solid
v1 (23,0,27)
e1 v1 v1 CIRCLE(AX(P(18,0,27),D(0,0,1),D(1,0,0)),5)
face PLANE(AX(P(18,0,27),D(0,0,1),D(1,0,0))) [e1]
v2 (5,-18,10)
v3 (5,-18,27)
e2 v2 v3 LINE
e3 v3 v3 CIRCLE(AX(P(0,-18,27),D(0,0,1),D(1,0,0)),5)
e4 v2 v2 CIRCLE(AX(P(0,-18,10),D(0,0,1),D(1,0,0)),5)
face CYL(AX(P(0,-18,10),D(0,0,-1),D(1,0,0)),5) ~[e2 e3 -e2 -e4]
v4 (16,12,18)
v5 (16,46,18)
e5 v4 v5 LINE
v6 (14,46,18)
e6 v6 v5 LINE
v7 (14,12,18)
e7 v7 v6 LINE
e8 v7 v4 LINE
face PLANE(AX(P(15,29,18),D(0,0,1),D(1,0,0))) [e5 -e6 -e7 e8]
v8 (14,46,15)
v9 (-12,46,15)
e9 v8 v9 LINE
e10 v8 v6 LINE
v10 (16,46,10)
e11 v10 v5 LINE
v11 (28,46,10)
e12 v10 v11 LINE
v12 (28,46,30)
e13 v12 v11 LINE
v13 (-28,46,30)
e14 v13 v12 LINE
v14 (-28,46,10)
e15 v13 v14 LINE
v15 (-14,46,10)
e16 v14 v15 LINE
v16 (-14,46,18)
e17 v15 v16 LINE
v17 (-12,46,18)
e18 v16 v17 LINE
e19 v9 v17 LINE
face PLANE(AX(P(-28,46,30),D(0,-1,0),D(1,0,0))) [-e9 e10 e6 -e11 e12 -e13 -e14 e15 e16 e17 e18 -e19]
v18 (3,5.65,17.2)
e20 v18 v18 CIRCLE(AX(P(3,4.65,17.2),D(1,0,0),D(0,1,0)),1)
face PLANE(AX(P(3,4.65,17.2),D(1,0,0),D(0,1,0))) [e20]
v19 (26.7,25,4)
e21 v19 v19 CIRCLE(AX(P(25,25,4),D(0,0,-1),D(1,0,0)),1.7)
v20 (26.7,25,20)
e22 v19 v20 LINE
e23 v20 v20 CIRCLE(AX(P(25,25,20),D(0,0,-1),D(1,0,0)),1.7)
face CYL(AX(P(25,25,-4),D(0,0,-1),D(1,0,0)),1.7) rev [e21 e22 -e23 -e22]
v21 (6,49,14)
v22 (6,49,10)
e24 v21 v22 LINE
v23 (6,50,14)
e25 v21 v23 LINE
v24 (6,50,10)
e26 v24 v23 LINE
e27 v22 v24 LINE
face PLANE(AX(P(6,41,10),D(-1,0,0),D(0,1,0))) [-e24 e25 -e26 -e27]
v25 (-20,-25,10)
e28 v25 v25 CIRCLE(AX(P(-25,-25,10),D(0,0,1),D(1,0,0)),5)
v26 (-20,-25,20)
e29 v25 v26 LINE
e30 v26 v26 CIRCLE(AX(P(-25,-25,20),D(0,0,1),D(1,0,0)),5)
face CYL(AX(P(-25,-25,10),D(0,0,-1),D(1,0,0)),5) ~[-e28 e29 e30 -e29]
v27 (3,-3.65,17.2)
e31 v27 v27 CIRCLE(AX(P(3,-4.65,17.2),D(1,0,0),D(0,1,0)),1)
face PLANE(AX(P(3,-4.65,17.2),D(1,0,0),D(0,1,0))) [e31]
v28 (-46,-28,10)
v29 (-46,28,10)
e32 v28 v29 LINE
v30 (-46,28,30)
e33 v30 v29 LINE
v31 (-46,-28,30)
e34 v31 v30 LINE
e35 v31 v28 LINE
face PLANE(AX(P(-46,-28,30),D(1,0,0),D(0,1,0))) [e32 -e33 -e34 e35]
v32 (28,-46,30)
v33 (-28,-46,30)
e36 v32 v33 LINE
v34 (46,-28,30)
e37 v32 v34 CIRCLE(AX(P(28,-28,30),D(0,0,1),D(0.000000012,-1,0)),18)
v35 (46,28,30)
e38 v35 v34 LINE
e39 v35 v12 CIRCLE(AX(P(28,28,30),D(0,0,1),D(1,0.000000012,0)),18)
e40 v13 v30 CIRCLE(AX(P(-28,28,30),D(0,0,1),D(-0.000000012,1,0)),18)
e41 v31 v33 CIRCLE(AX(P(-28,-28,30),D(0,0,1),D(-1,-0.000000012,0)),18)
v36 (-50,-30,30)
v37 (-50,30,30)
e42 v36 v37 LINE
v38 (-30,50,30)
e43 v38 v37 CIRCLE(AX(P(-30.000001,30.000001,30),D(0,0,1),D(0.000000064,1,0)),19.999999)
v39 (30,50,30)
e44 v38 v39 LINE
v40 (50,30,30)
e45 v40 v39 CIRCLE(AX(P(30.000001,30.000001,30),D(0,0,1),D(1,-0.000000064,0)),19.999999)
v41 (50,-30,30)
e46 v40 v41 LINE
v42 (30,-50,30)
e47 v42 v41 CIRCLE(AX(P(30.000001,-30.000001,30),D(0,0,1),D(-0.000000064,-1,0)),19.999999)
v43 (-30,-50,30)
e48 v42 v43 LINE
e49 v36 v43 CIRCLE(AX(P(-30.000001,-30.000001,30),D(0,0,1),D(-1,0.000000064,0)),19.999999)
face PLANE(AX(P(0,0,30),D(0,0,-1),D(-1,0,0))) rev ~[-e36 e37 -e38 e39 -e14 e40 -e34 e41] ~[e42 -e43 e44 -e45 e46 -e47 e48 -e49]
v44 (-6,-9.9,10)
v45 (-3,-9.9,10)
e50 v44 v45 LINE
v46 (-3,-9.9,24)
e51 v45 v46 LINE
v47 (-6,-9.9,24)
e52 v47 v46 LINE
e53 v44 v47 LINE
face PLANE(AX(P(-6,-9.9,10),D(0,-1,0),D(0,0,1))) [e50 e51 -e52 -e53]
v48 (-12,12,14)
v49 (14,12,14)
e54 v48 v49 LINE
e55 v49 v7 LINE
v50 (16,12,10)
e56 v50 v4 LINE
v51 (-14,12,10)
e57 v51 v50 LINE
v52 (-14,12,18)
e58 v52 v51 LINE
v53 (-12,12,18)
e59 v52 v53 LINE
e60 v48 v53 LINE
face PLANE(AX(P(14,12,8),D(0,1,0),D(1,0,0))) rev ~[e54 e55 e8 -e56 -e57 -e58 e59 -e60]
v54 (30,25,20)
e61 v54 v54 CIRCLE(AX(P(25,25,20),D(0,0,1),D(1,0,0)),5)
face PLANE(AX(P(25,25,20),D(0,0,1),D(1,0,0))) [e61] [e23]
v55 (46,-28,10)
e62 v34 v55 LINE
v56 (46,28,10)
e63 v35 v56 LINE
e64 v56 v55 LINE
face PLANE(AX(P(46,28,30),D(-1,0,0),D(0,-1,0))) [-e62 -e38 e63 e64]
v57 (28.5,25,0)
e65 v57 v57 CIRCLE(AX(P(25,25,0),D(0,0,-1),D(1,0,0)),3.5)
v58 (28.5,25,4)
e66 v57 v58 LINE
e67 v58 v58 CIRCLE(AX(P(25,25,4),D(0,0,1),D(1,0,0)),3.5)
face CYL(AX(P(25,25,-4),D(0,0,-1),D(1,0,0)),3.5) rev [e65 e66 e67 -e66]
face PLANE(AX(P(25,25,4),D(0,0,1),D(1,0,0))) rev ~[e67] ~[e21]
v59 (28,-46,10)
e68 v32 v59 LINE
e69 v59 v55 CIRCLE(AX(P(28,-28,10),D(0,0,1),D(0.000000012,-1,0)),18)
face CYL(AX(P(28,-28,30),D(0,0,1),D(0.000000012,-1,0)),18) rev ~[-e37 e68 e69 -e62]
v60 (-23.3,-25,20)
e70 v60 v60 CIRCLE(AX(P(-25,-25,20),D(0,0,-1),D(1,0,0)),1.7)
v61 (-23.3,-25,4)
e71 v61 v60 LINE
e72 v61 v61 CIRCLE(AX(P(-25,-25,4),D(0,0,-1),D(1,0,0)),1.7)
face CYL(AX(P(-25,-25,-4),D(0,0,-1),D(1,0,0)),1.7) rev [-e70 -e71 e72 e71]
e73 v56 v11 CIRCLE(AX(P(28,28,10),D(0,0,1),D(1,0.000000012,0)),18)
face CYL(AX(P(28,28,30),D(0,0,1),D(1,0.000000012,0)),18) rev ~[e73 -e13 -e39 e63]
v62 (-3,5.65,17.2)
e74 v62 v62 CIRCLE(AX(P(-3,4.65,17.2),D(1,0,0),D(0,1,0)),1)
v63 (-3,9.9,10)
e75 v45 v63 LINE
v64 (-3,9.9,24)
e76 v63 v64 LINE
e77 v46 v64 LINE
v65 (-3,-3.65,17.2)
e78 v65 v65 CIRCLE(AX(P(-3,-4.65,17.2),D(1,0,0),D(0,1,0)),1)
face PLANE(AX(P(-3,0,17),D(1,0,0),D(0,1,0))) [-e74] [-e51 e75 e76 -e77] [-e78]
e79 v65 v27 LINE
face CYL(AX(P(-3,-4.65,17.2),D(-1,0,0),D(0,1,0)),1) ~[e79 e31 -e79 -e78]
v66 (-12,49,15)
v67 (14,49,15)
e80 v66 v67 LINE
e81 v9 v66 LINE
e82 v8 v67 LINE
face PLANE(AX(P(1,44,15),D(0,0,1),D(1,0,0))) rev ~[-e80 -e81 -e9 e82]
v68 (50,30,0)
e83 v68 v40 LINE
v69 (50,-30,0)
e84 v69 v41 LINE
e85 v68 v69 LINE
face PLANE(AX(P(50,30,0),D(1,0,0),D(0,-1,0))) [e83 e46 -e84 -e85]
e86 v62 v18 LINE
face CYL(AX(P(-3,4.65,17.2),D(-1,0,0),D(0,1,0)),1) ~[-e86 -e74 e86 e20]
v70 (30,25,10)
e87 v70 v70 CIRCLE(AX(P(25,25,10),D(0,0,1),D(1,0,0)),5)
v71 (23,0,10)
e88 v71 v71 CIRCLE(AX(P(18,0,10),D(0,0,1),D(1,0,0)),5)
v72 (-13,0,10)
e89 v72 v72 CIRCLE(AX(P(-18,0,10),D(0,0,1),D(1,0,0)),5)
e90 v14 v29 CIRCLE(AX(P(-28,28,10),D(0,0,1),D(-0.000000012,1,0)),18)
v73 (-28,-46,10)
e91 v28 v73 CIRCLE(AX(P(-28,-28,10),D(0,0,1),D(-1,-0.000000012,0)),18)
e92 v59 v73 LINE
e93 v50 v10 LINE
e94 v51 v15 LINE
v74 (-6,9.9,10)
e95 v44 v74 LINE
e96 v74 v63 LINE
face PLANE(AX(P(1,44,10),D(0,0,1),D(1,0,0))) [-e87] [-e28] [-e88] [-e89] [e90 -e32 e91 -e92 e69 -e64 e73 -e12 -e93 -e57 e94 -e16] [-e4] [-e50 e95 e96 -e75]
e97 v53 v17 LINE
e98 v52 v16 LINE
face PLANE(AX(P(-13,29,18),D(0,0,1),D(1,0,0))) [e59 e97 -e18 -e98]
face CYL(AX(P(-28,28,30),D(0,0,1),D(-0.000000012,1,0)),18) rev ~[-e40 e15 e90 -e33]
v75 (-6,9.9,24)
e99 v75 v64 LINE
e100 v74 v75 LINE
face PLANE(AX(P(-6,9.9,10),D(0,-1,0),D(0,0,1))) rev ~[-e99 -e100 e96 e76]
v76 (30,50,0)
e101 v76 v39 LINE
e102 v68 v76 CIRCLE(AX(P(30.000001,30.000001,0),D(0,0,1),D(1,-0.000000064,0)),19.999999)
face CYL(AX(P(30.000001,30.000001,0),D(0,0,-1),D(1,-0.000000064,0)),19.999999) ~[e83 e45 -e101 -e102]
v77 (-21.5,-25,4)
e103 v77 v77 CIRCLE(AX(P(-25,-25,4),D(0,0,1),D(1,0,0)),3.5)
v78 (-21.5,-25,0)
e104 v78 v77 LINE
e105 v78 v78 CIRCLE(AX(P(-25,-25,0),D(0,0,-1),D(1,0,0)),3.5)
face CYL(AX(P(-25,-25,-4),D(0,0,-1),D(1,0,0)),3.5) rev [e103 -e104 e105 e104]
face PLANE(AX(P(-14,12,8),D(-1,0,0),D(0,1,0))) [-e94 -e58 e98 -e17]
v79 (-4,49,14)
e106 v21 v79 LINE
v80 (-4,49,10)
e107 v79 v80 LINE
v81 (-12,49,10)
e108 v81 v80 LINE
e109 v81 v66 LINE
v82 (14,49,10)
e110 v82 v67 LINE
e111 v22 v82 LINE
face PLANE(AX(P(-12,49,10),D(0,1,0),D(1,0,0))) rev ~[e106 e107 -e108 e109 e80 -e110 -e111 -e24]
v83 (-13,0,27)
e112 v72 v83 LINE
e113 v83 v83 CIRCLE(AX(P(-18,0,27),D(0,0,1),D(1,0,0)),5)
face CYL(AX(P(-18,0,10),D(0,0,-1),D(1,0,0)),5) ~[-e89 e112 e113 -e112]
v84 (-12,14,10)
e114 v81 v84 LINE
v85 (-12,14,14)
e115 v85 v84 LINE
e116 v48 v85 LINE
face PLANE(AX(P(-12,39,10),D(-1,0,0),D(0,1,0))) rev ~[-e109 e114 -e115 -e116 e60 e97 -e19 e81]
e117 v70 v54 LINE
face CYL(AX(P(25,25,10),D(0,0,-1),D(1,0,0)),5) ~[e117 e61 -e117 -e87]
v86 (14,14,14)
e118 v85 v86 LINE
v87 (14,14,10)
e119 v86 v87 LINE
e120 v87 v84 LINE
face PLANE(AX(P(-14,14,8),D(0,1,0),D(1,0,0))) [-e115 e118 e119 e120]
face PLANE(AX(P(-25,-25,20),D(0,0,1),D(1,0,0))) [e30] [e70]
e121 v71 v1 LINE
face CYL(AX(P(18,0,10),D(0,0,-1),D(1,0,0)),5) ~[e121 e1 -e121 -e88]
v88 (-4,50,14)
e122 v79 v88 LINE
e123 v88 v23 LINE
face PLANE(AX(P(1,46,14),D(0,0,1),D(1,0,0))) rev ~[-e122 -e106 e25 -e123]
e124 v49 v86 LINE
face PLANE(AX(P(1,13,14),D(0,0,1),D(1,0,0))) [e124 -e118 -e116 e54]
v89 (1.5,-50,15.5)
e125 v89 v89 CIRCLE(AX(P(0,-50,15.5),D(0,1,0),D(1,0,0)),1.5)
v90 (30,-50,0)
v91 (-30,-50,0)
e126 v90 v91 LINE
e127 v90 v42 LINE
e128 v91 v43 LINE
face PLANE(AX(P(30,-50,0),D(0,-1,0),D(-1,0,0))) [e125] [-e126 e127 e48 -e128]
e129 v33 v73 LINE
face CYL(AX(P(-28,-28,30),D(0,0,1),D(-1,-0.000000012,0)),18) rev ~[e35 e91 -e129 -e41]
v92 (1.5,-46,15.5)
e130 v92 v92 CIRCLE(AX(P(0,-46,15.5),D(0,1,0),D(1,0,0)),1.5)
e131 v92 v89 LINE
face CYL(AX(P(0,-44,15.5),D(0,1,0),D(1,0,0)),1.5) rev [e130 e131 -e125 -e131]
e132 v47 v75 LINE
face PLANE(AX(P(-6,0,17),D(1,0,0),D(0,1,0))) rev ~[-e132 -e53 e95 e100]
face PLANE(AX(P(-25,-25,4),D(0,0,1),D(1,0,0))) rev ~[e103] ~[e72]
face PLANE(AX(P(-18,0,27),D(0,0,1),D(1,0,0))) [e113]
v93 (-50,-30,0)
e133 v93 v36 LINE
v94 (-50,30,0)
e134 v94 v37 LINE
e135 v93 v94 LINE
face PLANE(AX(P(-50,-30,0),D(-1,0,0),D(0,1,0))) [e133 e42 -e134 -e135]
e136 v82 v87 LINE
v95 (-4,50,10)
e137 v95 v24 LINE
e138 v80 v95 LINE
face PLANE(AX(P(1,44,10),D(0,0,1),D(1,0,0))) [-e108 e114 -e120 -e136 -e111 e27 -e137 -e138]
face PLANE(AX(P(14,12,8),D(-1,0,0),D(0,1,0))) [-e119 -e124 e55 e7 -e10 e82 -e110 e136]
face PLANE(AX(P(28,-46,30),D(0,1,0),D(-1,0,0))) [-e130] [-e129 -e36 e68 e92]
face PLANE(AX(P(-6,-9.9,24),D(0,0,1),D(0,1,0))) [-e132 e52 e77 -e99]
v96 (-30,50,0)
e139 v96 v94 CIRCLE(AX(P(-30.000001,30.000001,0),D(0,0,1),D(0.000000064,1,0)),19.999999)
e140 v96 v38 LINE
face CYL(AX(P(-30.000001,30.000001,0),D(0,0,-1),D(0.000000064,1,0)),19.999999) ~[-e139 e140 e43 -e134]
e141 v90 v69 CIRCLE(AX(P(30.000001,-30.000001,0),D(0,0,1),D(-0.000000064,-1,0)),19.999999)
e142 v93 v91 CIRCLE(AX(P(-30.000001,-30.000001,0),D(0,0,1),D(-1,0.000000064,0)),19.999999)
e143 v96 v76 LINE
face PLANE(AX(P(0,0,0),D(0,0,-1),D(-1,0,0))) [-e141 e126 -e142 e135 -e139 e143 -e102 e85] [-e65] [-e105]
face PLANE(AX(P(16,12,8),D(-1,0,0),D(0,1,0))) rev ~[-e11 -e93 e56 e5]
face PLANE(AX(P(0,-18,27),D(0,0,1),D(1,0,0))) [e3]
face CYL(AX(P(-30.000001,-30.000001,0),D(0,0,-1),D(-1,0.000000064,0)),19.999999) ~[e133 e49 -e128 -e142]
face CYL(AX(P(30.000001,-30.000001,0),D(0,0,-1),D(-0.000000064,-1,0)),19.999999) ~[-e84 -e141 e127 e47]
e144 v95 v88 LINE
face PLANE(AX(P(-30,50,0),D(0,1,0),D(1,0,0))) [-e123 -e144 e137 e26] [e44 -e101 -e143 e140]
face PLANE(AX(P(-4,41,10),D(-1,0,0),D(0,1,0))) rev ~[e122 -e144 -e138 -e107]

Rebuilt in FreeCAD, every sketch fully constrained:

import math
import FreeCAD as App
import Part
import Sketcher

doc = App.newDocument("Part")
body = doc.addObject("PartDesign::Body", "Body")

sketch1 = body.newObject("Sketcher::SketchObject", "Sketch")
sketch1.AttachmentSupport = (doc.getObject("XZ_Plane"), [""])
sketch1.MapMode = "FlatFace"
sketch1.AttachmentOffset = App.Placement(App.Vector(0, 0, 44), App.Rotation())
sketch1.addGeometry(Part.Circle(App.Vector(0, 15.5, 0), App.Vector(0, 0, 1), 1.5), False)
sketch1.addConstraint([
    Sketcher.Constraint("PointOnObject", 0, 3, -2),
    Sketcher.Constraint("Diameter", 0, 3.0),
    Sketcher.Constraint("DistanceY", -1, 1, 0, 3, 15.5),
])
pad1 = body.newObject("PartDesign::Pad", "Pad")
pad1.Profile = sketch1
pad1.Length = 10
body2 = doc.addObject("PartDesign::Body", "Body001")

sketch2 = body2.newObject("Sketcher::SketchObject", "Sketch001")
sketch2.AttachmentSupport = (doc.getObject("XY_Plane001"), [""])
sketch2.MapMode = "FlatFace"
sketch2.AttachmentOffset = App.Placement(App.Vector(0, 0, -4), App.Rotation())
sketch2.addGeometry(Part.Circle(App.Vector(25, 25, 0), App.Vector(0, 0, 1), 3.5), False)
sketch2.addConstraint([
    Sketcher.Constraint("Diameter", 0, 7.0),
    Sketcher.Constraint("DistanceX", -1, 1, 0, 3, 25.0),
    Sketcher.Constraint("DistanceY", -1, 1, 0, 3, 25.0),
])
pad2 = body2.newObject("PartDesign::Pad", "Pad001")
pad2.Profile = sketch2
pad2.Length = 8
body3 = doc.addObject("PartDesign::Body", "Body002")

sketch3 = body3.newObject("Sketcher::SketchObject", "Sketch002")
sketch3.AttachmentSupport = (doc.getObject("XY_Plane002"), [""])
sketch3.MapMode = "FlatFace"
sketch3.AttachmentOffset = App.Placement(App.Vector(0, 0, -4), App.Rotation())
sketch3.addGeometry(Part.Circle(App.Vector(25, 25, 0), App.Vector(0, 0, 1), 1.7), False)
sketch3.addConstraint([
    Sketcher.Constraint("Diameter", 0, 3.4),
    Sketcher.Constraint("DistanceX", -1, 1, 0, 3, 25.0),
    Sketcher.Constraint("DistanceY", -1, 1, 0, 3, 25.0),
])
pad3 = body3.newObject("PartDesign::Pad", "Pad002")
pad3.Profile = sketch3
pad3.Length = 36
doc.recompute()

boolean = body3.newObject("PartDesign::Boolean", "Boolean")
boolean.Type = "Fuse"
boolean.addObjects([body2])
body4 = doc.addObject("PartDesign::Body", "Body003")

sketch4 = body4.newObject("Sketcher::SketchObject", "Sketch003")
sketch4.AttachmentSupport = (doc.getObject("XY_Plane003"), [""])
sketch4.MapMode = "FlatFace"
sketch4.AttachmentOffset = App.Placement(App.Vector(0, 0, -4), App.Rotation())
sketch4.addGeometry(Part.Circle(App.Vector(-25, -25, 0), App.Vector(0, 0, 1), 3.5), False)
sketch4.addConstraint([
    Sketcher.Constraint("Diameter", 0, 7.0),
    Sketcher.Constraint("DistanceX", 0, 3, -1, 1, 25.0),
    Sketcher.Constraint("DistanceY", 0, 3, -1, 1, 25.0),
])
pad4 = body4.newObject("PartDesign::Pad", "Pad003")
pad4.Profile = sketch4
pad4.Length = 8
body5 = doc.addObject("PartDesign::Body", "Body004")

sketch5 = body5.newObject("Sketcher::SketchObject", "Sketch004")
sketch5.AttachmentSupport = (doc.getObject("XY_Plane004"), [""])
sketch5.MapMode = "FlatFace"
sketch5.AttachmentOffset = App.Placement(App.Vector(0, 0, -4), App.Rotation())
sketch5.addGeometry(Part.Circle(App.Vector(-25, -25, 0), App.Vector(0, 0, 1), 1.7), False)
sketch5.addConstraint([
    Sketcher.Constraint("Diameter", 0, 3.4),
    Sketcher.Constraint("DistanceX", 0, 3, -1, 1, 25.0),
    Sketcher.Constraint("DistanceY", 0, 3, -1, 1, 25.0),
])
pad5 = body5.newObject("PartDesign::Pad", "Pad004")
pad5.Profile = sketch5
pad5.Length = 36
doc.recompute()

boolean2 = body5.newObject("PartDesign::Boolean", "Boolean001")
boolean2.Type = "Fuse"
boolean2.addObjects([body4])
body6 = doc.addObject("PartDesign::Body", "Body005")

sketch6 = body6.newObject("Sketcher::SketchObject", "Sketch005")
sketch6.AttachmentSupport = (doc.getObject("XY_Plane005"), [""])
sketch6.MapMode = "FlatFace"
sketch6.AttachmentOffset = App.Placement(App.Vector(0, 0, 10), App.Rotation())
sketch6.addGeometry(Part.Circle(App.Vector(25, 25, 0), App.Vector(0, 0, 1), 5), False)
sketch6.addConstraint([
    Sketcher.Constraint("Diameter", 0, 10.0),
    Sketcher.Constraint("DistanceX", -1, 1, 0, 3, 25.0),
    Sketcher.Constraint("DistanceY", -1, 1, 0, 3, 25.0),
])
pad6 = body6.newObject("PartDesign::Pad", "Pad005")
pad6.Profile = sketch6
pad6.Length = 10
body7 = doc.addObject("PartDesign::Body", "Body006")

sketch7 = body7.newObject("Sketcher::SketchObject", "Sketch006")
sketch7.AttachmentSupport = (doc.getObject("XY_Plane006"), [""])
sketch7.MapMode = "FlatFace"
sketch7.AttachmentOffset = App.Placement(App.Vector(0, 0, 10), App.Rotation())
sketch7.addGeometry(Part.Circle(App.Vector(-25, -25, 0), App.Vector(0, 0, 1), 5), False)
sketch7.addConstraint([
    Sketcher.Constraint("Diameter", 0, 10.0),
    Sketcher.Constraint("DistanceX", 0, 3, -1, 1, 25.0),
    Sketcher.Constraint("DistanceY", 0, 3, -1, 1, 25.0),
])
pad7 = body7.newObject("PartDesign::Pad", "Pad006")
pad7.Profile = sketch7
pad7.Length = 10
body8 = doc.addObject("PartDesign::Body", "Body007")

sketch8 = body8.newObject("Sketcher::SketchObject", "Sketch007")
sketch8.AttachmentSupport = (doc.getObject("YZ_Plane007"), [""])
sketch8.MapMode = "FlatFace"
sketch8.addGeometry([
    Part.LineSegment(App.Vector(-10, 14, 0), App.Vector(-10, 0, 0)),
    Part.LineSegment(App.Vector(-10, 0, 0), App.Vector(10, 0, 0)),
    Part.LineSegment(App.Vector(10, 0, 0), App.Vector(10, 14, 0)),
    Part.LineSegment(App.Vector(10, 14, 0), App.Vector(-10, 14, 0)),
], False)
sketch8.addConstraint([
    Sketcher.Constraint("Coincident", 0, 2, 1, 1),
    Sketcher.Constraint("Coincident", 1, 2, 2, 1),
    Sketcher.Constraint("Coincident", 2, 2, 3, 1),
    Sketcher.Constraint("Coincident", 3, 2, 0, 1),
    Sketcher.Constraint("Vertical", 0),
    Sketcher.Constraint("Horizontal", 1),
    Sketcher.Constraint("Vertical", 2),
    Sketcher.Constraint("Horizontal", 3),
    Sketcher.Constraint("Symmetric", 0, 2, 1, 2, -1, 1),
    Sketcher.Constraint("DistanceY", 0, 2, 0, 1, 14.0),
    Sketcher.Constraint("DistanceX", 1, 1, 1, 2, 19.8),
])
pad8 = body8.newObject("PartDesign::Pad", "Pad007")
pad8.Profile = sketch8
pad8.Length = 3

sketch9 = body8.newObject("Sketcher::SketchObject", "Sketch008")
sketch9.AttachmentSupport = (doc.getObject("YZ_Plane007"), [""])
sketch9.MapMode = "FlatFace"
sketch9.AttachmentOffset = App.Placement(App.Vector(0, 0, 3), App.Rotation())
sketch9.addGeometry([
    Part.Circle(App.Vector(-4.7, 7.2, 0), App.Vector(0, 0, 1), 1),
    Part.Circle(App.Vector(4.7, 7.2, 0), App.Vector(0, 0, 1), 1),
], False)
sketch9.addConstraint([
    Sketcher.Constraint("Equal", 0, 1),
    Sketcher.Constraint("Symmetric", 0, 3, 1, 3, -2),
    Sketcher.Constraint("Diameter", 0, 2.0),
    Sketcher.Constraint("DistanceY", -1, 1, 0, 3, 7.2),
    Sketcher.Constraint("DistanceX", 0, 3, 1, 3, 9.3),
])
pad9 = body8.newObject("PartDesign::Pad", "Pad008")
pad9.Profile = sketch9
pad9.Length = 6
body9 = doc.addObject("PartDesign::Body", "Body008")
doc.recompute()

body8.Placement = App.Placement(App.Vector(-6, 0, 10), App.Rotation(App.Vector(0, 0, 1), 0))
boolean3 = body9.newObject("PartDesign::Boolean", "Boolean002")
boolean3.Type = "Fuse"
boolean3.addObjects([body8])
body10 = doc.addObject("PartDesign::Body", "Body009")

sketch10 = body10.newObject("Sketcher::SketchObject", "Sketch009")
sketch10.AttachmentSupport = (doc.getObject("XY_Plane009"), [""])
sketch10.MapMode = "FlatFace"
sketch10.AttachmentOffset = App.Placement(App.Vector(0, 0, 10), App.Rotation())
sketch10.addGeometry(Part.Circle(App.Vector(-18, 0, 0), App.Vector(0, 0, 1), 5), False)
sketch10.addConstraint([
    Sketcher.Constraint("PointOnObject", 0, 3, -1),
    Sketcher.Constraint("Diameter", 0, 10.0),
    Sketcher.Constraint("DistanceX", 0, 3, -1, 1, 18.0),
])
pad10 = body10.newObject("PartDesign::Pad", "Pad009")
pad10.Profile = sketch10
pad10.Length = 17
body11 = doc.addObject("PartDesign::Body", "Body010")

sketch11 = body11.newObject("Sketcher::SketchObject", "Sketch010")
sketch11.AttachmentSupport = (doc.getObject("XY_Plane010"), [""])
sketch11.MapMode = "FlatFace"
sketch11.AttachmentOffset = App.Placement(App.Vector(0, 0, 10), App.Rotation())
sketch11.addGeometry(Part.Circle(App.Vector(18, 0, 0), App.Vector(0, 0, 1), 5), False)
sketch11.addConstraint([
    Sketcher.Constraint("PointOnObject", 0, 3, -1),
    Sketcher.Constraint("Diameter", 0, 10.0),
    Sketcher.Constraint("DistanceX", -1, 1, 0, 3, 18.0),
])
pad11 = body11.newObject("PartDesign::Pad", "Pad010")
pad11.Profile = sketch11
pad11.Length = 17
body12 = doc.addObject("PartDesign::Body", "Body011")

sketch12 = body12.newObject("Sketcher::SketchObject", "Sketch011")
sketch12.AttachmentSupport = (doc.getObject("XY_Plane011"), [""])
sketch12.MapMode = "FlatFace"
sketch12.AttachmentOffset = App.Placement(App.Vector(0, 0, 10), App.Rotation())
sketch12.addGeometry(Part.Circle(App.Vector(0, -18, 0), App.Vector(0, 0, 1), 5), False)
sketch12.addConstraint([
    Sketcher.Constraint("PointOnObject", 0, 3, -2),
    Sketcher.Constraint("Diameter", 0, 10.0),
    Sketcher.Constraint("DistanceY", 0, 3, -1, 1, 18.0),
])
pad12 = body12.newObject("PartDesign::Pad", "Pad011")
pad12.Profile = sketch12
pad12.Length = 17
body13 = doc.addObject("PartDesign::Body", "Body012")

sketch13 = body13.newObject("Sketcher::SketchObject", "Sketch012")
sketch13.AttachmentSupport = (doc.getObject("XY_Plane012"), [""])
sketch13.MapMode = "FlatFace"
sketch13.AttachmentOffset = App.Placement(App.Vector(0, 0, 8), App.Rotation())
sketch13.addGeometry([
    Part.LineSegment(App.Vector(-14, 46, 0), App.Vector(-14, 12, 0)),
    Part.LineSegment(App.Vector(-14, 12, 0), App.Vector(-12, 12, 0)),
    Part.LineSegment(App.Vector(-12, 12, 0), App.Vector(-12, 46, 0)),
    Part.LineSegment(App.Vector(-12, 46, 0), App.Vector(-14, 46, 0)),
], False)
sketch13.addConstraint([
    Sketcher.Constraint("Coincident", 0, 2, 1, 1),
    Sketcher.Constraint("Coincident", 1, 2, 2, 1),
    Sketcher.Constraint("Coincident", 2, 2, 3, 1),
    Sketcher.Constraint("Coincident", 3, 2, 0, 1),
    Sketcher.Constraint("Vertical", 0),
    Sketcher.Constraint("Horizontal", 1),
    Sketcher.Constraint("Vertical", 2),
    Sketcher.Constraint("Horizontal", 3),
    Sketcher.Constraint("DistanceX", 1, 1, 1, 2, 2.0),
    Sketcher.Constraint("DistanceY", 0, 2, 0, 1, 34.0),
    Sketcher.Constraint("DistanceX", 0, 2, -1, 1, 14.0),
    Sketcher.Constraint("DistanceY", -1, 1, 0, 2, 12.0),
])
pad13 = body13.newObject("PartDesign::Pad", "Pad012")
pad13.Profile = sketch13
pad13.Length = 10
body14 = doc.addObject("PartDesign::Body", "Body013")

sketch14 = body14.newObject("Sketcher::SketchObject", "Sketch013")
sketch14.AttachmentSupport = (doc.getObject("XY_Plane013"), [""])
sketch14.MapMode = "FlatFace"
sketch14.AttachmentOffset = App.Placement(App.Vector(0, 0, 8), App.Rotation())
sketch14.addGeometry([
    Part.LineSegment(App.Vector(14, 46, 0), App.Vector(14, 12, 0)),
    Part.LineSegment(App.Vector(14, 12, 0), App.Vector(16, 12, 0)),
    Part.LineSegment(App.Vector(16, 12, 0), App.Vector(16, 46, 0)),
    Part.LineSegment(App.Vector(16, 46, 0), App.Vector(14, 46, 0)),
], False)
sketch14.addConstraint([
    Sketcher.Constraint("Coincident", 0, 2, 1, 1),
    Sketcher.Constraint("Coincident", 1, 2, 2, 1),
    Sketcher.Constraint("Coincident", 2, 2, 3, 1),
    Sketcher.Constraint("Coincident", 3, 2, 0, 1),
    Sketcher.Constraint("Vertical", 0),
    Sketcher.Constraint("Horizontal", 1),
    Sketcher.Constraint("Vertical", 2),
    Sketcher.Constraint("Horizontal", 3),
    Sketcher.Constraint("DistanceX", 1, 1, 1, 2, 2.0),
    Sketcher.Constraint("DistanceY", 0, 2, 0, 1, 34.0),
    Sketcher.Constraint("DistanceX", -1, 1, 0, 2, 14.0),
    Sketcher.Constraint("DistanceY", -1, 1, 0, 2, 12.0),
])
pad14 = body14.newObject("PartDesign::Pad", "Pad013")
pad14.Profile = sketch14
pad14.Length = 10
body15 = doc.addObject("PartDesign::Body", "Body014")

sketch15 = body15.newObject("Sketcher::SketchObject", "Sketch014")
sketch15.AttachmentSupport = (doc.getObject("XY_Plane014"), [""])
sketch15.MapMode = "FlatFace"
sketch15.AttachmentOffset = App.Placement(App.Vector(0, 0, 8), App.Rotation())
sketch15.addGeometry([
    Part.LineSegment(App.Vector(-14, 14, 0), App.Vector(-14, 12, 0)),
    Part.LineSegment(App.Vector(-14, 12, 0), App.Vector(16, 12, 0)),
    Part.LineSegment(App.Vector(16, 12, 0), App.Vector(16, 14, 0)),
    Part.LineSegment(App.Vector(16, 14, 0), App.Vector(-14, 14, 0)),
], False)
sketch15.addConstraint([
    Sketcher.Constraint("Coincident", 0, 2, 1, 1),
    Sketcher.Constraint("Coincident", 1, 2, 2, 1),
    Sketcher.Constraint("Coincident", 2, 2, 3, 1),
    Sketcher.Constraint("Coincident", 3, 2, 0, 1),
    Sketcher.Constraint("Vertical", 0),
    Sketcher.Constraint("Horizontal", 1),
    Sketcher.Constraint("Vertical", 2),
    Sketcher.Constraint("Horizontal", 3),
    Sketcher.Constraint("DistanceX", 1, 1, 1, 2, 30.0),
    Sketcher.Constraint("DistanceY", 0, 2, 0, 1, 2.0),
    Sketcher.Constraint("DistanceX", 0, 2, -1, 1, 14.0),
    Sketcher.Constraint("DistanceY", -1, 1, 0, 2, 12.0),
])
pad15 = body15.newObject("PartDesign::Pad", "Pad014")
pad15.Profile = sketch15
pad15.Length = 6
body16 = doc.addObject("PartDesign::Body", "Body015")

sketch16 = body16.newObject("Sketcher::SketchObject", "Sketch015")
sketch16.AttachmentSupport = (doc.getObject("XY_Plane015"), [""])
sketch16.MapMode = "FlatFace"
sketch16.AttachmentOffset = App.Placement(App.Vector(0, 0, 10), App.Rotation())
sketch16.addGeometry([
    Part.LineSegment(App.Vector(-12, 49, 0), App.Vector(-12, 39, 0)),
    Part.LineSegment(App.Vector(-12, 39, 0), App.Vector(14, 39, 0)),
    Part.LineSegment(App.Vector(14, 39, 0), App.Vector(14, 49, 0)),
    Part.LineSegment(App.Vector(14, 49, 0), App.Vector(-12, 49, 0)),
], False)
sketch16.addConstraint([
    Sketcher.Constraint("Coincident", 0, 2, 1, 1),
    Sketcher.Constraint("Coincident", 1, 2, 2, 1),
    Sketcher.Constraint("Coincident", 2, 2, 3, 1),
    Sketcher.Constraint("Coincident", 3, 2, 0, 1),
    Sketcher.Constraint("Vertical", 0),
    Sketcher.Constraint("Horizontal", 1),
    Sketcher.Constraint("Vertical", 2),
    Sketcher.Constraint("Horizontal", 3),
    Sketcher.Constraint("DistanceX", 1, 1, 1, 2, 26.0),
    Sketcher.Constraint("DistanceY", 0, 2, 0, 1, 10.0),
    Sketcher.Constraint("DistanceX", 0, 2, -1, 1, 12.0),
    Sketcher.Constraint("DistanceY", -1, 1, 0, 2, 39.0),
])
pad16 = body16.newObject("PartDesign::Pad", "Pad015")
pad16.Profile = sketch16
pad16.Length = 5
body17 = doc.addObject("PartDesign::Body", "Body016")

sketch17 = body17.newObject("Sketcher::SketchObject", "Sketch016")
sketch17.AttachmentSupport = (doc.getObject("XY_Plane016"), [""])
sketch17.MapMode = "FlatFace"
sketch17.AttachmentOffset = App.Placement(App.Vector(0, 0, 10), App.Rotation())
sketch17.addGeometry([
    Part.LineSegment(App.Vector(-4, 51, 0), App.Vector(-4, 41, 0)),
    Part.LineSegment(App.Vector(-4, 41, 0), App.Vector(6, 41, 0)),
    Part.LineSegment(App.Vector(6, 41, 0), App.Vector(6, 51, 0)),
    Part.LineSegment(App.Vector(6, 51, 0), App.Vector(-4, 51, 0)),
], False)
sketch17.addConstraint([
    Sketcher.Constraint("Coincident", 0, 2, 1, 1),
    Sketcher.Constraint("Coincident", 1, 2, 2, 1),
    Sketcher.Constraint("Coincident", 2, 2, 3, 1),
    Sketcher.Constraint("Coincident", 3, 2, 0, 1),
    Sketcher.Constraint("Vertical", 0),
    Sketcher.Constraint("Horizontal", 1),
    Sketcher.Constraint("Vertical", 2),
    Sketcher.Constraint("Horizontal", 3),
    Sketcher.Constraint("Equal", 3, 0),
    Sketcher.Constraint("DistanceX", 1, 1, 1, 2, 10.0),
    Sketcher.Constraint("DistanceX", 0, 2, -1, 1, 4.0),
    Sketcher.Constraint("DistanceY", -1, 1, 0, 2, 41.0),
])
pad17 = body17.newObject("PartDesign::Pad", "Pad016")
pad17.Profile = sketch17
pad17.Length = 4
doc.recompute()

boolean4 = body17.newObject("PartDesign::Boolean", "Boolean003")
boolean4.Type = "Fuse"
boolean4.addObjects([body16])
body18 = doc.addObject("PartDesign::Body", "Body017")

sketch18 = body18.newObject("Sketcher::SketchObject", "Sketch017")
sketch18.AttachmentSupport = (doc.getObject("XY_Plane017"), [""])
sketch18.MapMode = "FlatFace"
sketch18.addGeometry([
    Part.LineSegment(App.Vector(30, 50, 0), App.Vector(-30, 50, 0)),
    Part.ArcOfCircle(Part.Circle(App.Vector(-30, 30, 0), App.Vector(0, 0, 1), 20), math.radians(90), math.radians(180)),
    Part.LineSegment(App.Vector(-50, 30, 0), App.Vector(-50, -30, 0)),
    Part.ArcOfCircle(Part.Circle(App.Vector(-30, -30, 0), App.Vector(0, 0, 1), 20), math.radians(180), math.radians(270)),
    Part.LineSegment(App.Vector(-30, -50, 0), App.Vector(30, -50, 0)),
    Part.ArcOfCircle(Part.Circle(App.Vector(30, -30, 0), App.Vector(0, 0, 1), 20), math.radians(-90), math.radians(0)),
    Part.LineSegment(App.Vector(50, -30, 0), App.Vector(50, 30, 0)),
    Part.ArcOfCircle(Part.Circle(App.Vector(30, 30, 0), App.Vector(0, 0, 1), 20), math.radians(0), math.radians(90)),
], False)
sketch18.addConstraint([
    Sketcher.Constraint("Tangent", 0, 2, 1, 1),
    Sketcher.Constraint("Tangent", 1, 2, 2, 1),
    Sketcher.Constraint("Tangent", 2, 2, 3, 1),
    Sketcher.Constraint("Tangent", 3, 2, 4, 1),
    Sketcher.Constraint("Tangent", 4, 2, 5, 1),
    Sketcher.Constraint("Tangent", 5, 2, 6, 1),
    Sketcher.Constraint("Tangent", 6, 2, 7, 1),
    Sketcher.Constraint("Tangent", 7, 2, 0, 1),
    Sketcher.Constraint("Horizontal", 0),
    Sketcher.Constraint("Vertical", 2),
    Sketcher.Constraint("Horizontal", 4),
    Sketcher.Constraint("Vertical", 6),
    Sketcher.Constraint("Equal", 1, 3),
    Sketcher.Constraint("Equal", 3, 5),
    Sketcher.Constraint("Equal", 5, 7),
    Sketcher.Constraint("Symmetric", 1, 3, 5, 3, -1, 1),
    Sketcher.Constraint("Equal", 4, 2),
    Sketcher.Constraint("Radius", 1, 19.999999),
    Sketcher.Constraint("DistanceX", 0, 2, 0, 1, 60.0),
])
pad18 = body18.newObject("PartDesign::Pad", "Pad017")
pad18.Profile = sketch18
pad18.Length = 30

sketch19 = body18.newObject("Sketcher::SketchObject", "Sketch018")
sketch19.AttachmentSupport = (doc.getObject("XY_Plane017"), [""])
sketch19.MapMode = "FlatFace"
sketch19.AttachmentOffset = App.Placement(App.Vector(0, 0, 30), App.Rotation())
sketch19.addGeometry([
    Part.LineSegment(App.Vector(28, 46, 0), App.Vector(-28, 46, 0)),
    Part.ArcOfCircle(Part.Circle(App.Vector(-28, 28, 0), App.Vector(0, 0, 1), 18), math.radians(90), math.radians(180)),
    Part.LineSegment(App.Vector(-46, 28, 0), App.Vector(-46, -28, 0)),
    Part.ArcOfCircle(Part.Circle(App.Vector(-28, -28, 0), App.Vector(0, 0, 1), 18), math.radians(-180), math.radians(-90)),
    Part.LineSegment(App.Vector(-28, -46, 0), App.Vector(28, -46, 0)),
    Part.ArcOfCircle(Part.Circle(App.Vector(28, -28, 0), App.Vector(0, 0, 1), 18), math.radians(-90), math.radians(0)),
    Part.LineSegment(App.Vector(46, -28, 0), App.Vector(46, 28, 0)),
    Part.ArcOfCircle(Part.Circle(App.Vector(28, 28, 0), App.Vector(0, 0, 1), 18), math.radians(0), math.radians(90)),
], False)
sketch19.addConstraint([
    Sketcher.Constraint("Tangent", 0, 2, 1, 1),
    Sketcher.Constraint("Tangent", 1, 2, 2, 1),
    Sketcher.Constraint("Tangent", 2, 2, 3, 1),
    Sketcher.Constraint("Tangent", 3, 2, 4, 1),
    Sketcher.Constraint("Tangent", 4, 2, 5, 1),
    Sketcher.Constraint("Tangent", 5, 2, 6, 1),
    Sketcher.Constraint("Tangent", 6, 2, 7, 1),
    Sketcher.Constraint("Tangent", 7, 2, 0, 1),
    Sketcher.Constraint("Horizontal", 0),
    Sketcher.Constraint("Vertical", 2),
    Sketcher.Constraint("Horizontal", 4),
    Sketcher.Constraint("Vertical", 6),
    Sketcher.Constraint("Equal", 1, 3),
    Sketcher.Constraint("Equal", 3, 5),
    Sketcher.Constraint("Equal", 5, 7),
    Sketcher.Constraint("Symmetric", 1, 3, 5, 3, -1, 1),
    Sketcher.Constraint("Equal", 4, 2),
    Sketcher.Constraint("Radius", 1, 18.0),
    Sketcher.Constraint("DistanceX", 0, 2, 0, 1, 56.0),
])
pocket1 = body18.newObject("PartDesign::Pocket", "Pocket")
pocket1.Profile = sketch19
pocket1.Length = 20
doc.recompute()

boolean5 = body18.newObject("PartDesign::Boolean", "Boolean004")
boolean5.Type = "Cut"
boolean5.addObjects([body17])
doc.recompute()

boolean6 = body18.newObject("PartDesign::Boolean", "Boolean005")
boolean6.Type = "Fuse"
boolean6.addObjects([body6])
doc.recompute()

boolean7 = body18.newObject("PartDesign::Boolean", "Boolean006")
boolean7.Type = "Fuse"
boolean7.addObjects([body7])
doc.recompute()

boolean8 = body18.newObject("PartDesign::Boolean", "Boolean007")
boolean8.Type = "Fuse"
boolean8.addObjects([body9])
doc.recompute()

boolean9 = body18.newObject("PartDesign::Boolean", "Boolean008")
boolean9.Type = "Fuse"
boolean9.addObjects([body10])
doc.recompute()

boolean10 = body18.newObject("PartDesign::Boolean", "Boolean009")
boolean10.Type = "Fuse"
boolean10.addObjects([body11])
doc.recompute()

boolean11 = body18.newObject("PartDesign::Boolean", "Boolean010")
boolean11.Type = "Fuse"
boolean11.addObjects([body12])
doc.recompute()

boolean12 = body18.newObject("PartDesign::Boolean", "Boolean011")
boolean12.Type = "Fuse"
boolean12.addObjects([body13])
doc.recompute()

boolean13 = body18.newObject("PartDesign::Boolean", "Boolean012")
boolean13.Type = "Fuse"
boolean13.addObjects([body14])
doc.recompute()

boolean14 = body18.newObject("PartDesign::Boolean", "Boolean013")
boolean14.Type = "Fuse"
boolean14.addObjects([body15])
doc.recompute()

boolean15 = body18.newObject("PartDesign::Boolean", "Boolean014")
boolean15.Type = "Cut"
boolean15.addObjects([body5])
doc.recompute()

boolean16 = body18.newObject("PartDesign::Boolean", "Boolean015")
boolean16.Type = "Cut"
boolean16.addObjects([body3])
doc.recompute()

boolean17 = body18.newObject("PartDesign::Boolean", "Boolean016")
boolean17.Type = "Cut"
boolean17.addObjects([body])

doc.recompute()
